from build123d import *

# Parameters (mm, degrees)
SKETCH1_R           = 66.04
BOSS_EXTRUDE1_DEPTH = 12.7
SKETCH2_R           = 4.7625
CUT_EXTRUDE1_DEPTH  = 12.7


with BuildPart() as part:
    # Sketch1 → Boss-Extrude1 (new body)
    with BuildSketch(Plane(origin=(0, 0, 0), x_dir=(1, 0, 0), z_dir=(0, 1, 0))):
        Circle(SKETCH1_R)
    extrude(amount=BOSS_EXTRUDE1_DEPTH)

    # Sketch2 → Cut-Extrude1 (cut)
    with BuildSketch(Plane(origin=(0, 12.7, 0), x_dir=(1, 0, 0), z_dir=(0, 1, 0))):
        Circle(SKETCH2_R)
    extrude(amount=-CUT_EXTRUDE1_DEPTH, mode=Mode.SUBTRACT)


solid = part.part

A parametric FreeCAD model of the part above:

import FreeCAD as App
import Part
import Sketcher
from FreeCAD import Vector
Q = App.Units.Quantity

doc = App.newDocument("Part")
body = doc.addObject("PartDesign::Body", "Body")

# Sketch on XZ plane
sketch1 = body.newObject("Sketcher::SketchObject", "Sketch")
sketch1.AttachmentSupport = (doc.getObject("XZ_Plane"), [""])
sketch1.MapMode = "FlatFace"
sketch1.addGeometry(Part.Circle(Vector(0, 0, 0), Vector(0, 0, 1), 66.04), False)
sketch1.addConstraint([
    Sketcher.Constraint("Coincident", 0, 3, -1, 1),
    Sketcher.Constraint("Diameter", 0, Q("5.2 in")),
])
pad1 = body.newObject("PartDesign::Pad", "Pad")
pad1.Profile = sketch1
pad1.Length = Q("0.5 in")
pad1.Reversed = True

# Sketch on XZ plane
sketch2 = body.newObject("Sketcher::SketchObject", "Sketch001")
sketch2.AttachmentSupport = (doc.getObject("XZ_Plane"), [""])
sketch2.MapMode = "FlatFace"
sketch2.AttachmentOffset = App.Placement(Vector(0, 0, -0.5 * 25.4), App.Rotation())
sketch2.addGeometry(Part.Circle(Vector(0, 0, 0), Vector(0, 0, 1), 4.7625), False)
sketch2.addConstraint([
    Sketcher.Constraint("Coincident", 0, 3, -1, 1),
    Sketcher.Constraint("Diameter", 0, Q("0.375 in")),
])
pocket1 = body.newObject("PartDesign::Pocket", "Pocket")
pocket1.Profile = sketch2
pocket1.Length = Q("0.5 in")
pocket1.Reversed = True

doc.recompute()
